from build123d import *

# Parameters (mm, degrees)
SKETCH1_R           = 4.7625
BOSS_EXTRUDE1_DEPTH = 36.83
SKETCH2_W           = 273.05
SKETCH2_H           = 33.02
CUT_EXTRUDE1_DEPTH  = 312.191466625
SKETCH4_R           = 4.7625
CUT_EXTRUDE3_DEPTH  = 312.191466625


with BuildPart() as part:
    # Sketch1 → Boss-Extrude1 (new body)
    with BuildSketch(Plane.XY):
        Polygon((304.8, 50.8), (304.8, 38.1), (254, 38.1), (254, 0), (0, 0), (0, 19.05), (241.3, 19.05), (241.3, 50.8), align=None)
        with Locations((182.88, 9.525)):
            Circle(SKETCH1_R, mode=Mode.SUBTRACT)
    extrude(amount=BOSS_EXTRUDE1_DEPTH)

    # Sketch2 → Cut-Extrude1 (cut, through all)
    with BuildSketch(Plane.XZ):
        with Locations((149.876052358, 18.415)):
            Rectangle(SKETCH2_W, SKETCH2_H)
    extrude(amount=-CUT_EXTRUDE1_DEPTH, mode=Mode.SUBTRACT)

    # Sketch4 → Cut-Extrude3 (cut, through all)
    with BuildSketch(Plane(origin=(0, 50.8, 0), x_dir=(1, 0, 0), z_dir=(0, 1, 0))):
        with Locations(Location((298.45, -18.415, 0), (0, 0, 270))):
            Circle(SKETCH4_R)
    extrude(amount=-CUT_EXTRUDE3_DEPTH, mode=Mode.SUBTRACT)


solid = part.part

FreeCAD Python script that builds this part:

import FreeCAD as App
import Part
import Sketcher
from FreeCAD import Vector
Q = App.Units.Quantity

doc = App.newDocument("Part")
body = doc.addObject("PartDesign::Body", "Body")

sketch1 = body.newObject("Sketcher::SketchObject", "Sketch")
sketch1.AttachmentSupport = (doc.getObject("XY_Plane"), [""])
sketch1.MapMode = "FlatFace"
sketch1.addGeometry(Part.LineSegment(Vector(304.8, 38.1, 0), Vector(304.8, 50.8, 0)), False)
sketch1.addGeometry(Part.LineSegment(Vector(304.8, 50.8, 0), Vector(241.3, 50.8, 0)), False)
sketch1.addGeometry(Part.LineSegment(Vector(241.3, 50.8, 0), Vector(241.3, 19.05, 0)), False)
sketch1.addGeometry(Part.LineSegment(Vector(241.3, 19.05, 0), Vector(0, 19.05, 0)), False)
sketch1.addGeometry(Part.LineSegment(Vector(0, 19.05, 0), Vector(0, 0, 0)), False)
sketch1.addGeometry(Part.LineSegment(Vector(0, 0, 0), Vector(254, 0, 0)), False)
sketch1.addGeometry(Part.LineSegment(Vector(254, 0, 0), Vector(254, 38.1, 0)), False)
sketch1.addGeometry(Part.LineSegment(Vector(254, 38.1, 0), Vector(304.8, 38.1, 0)), False)
sketch1.addGeometry(Part.Circle(Vector(182.88, 9.525, 0), Vector(0, 0, 1), 4.7625), False)
sketch1.addConstraint(Sketcher.Constraint("Coincident", 0, 2, 1, 1))
sketch1.addConstraint(Sketcher.Constraint("Coincident", 1, 2, 2, 1))
sketch1.addConstraint(Sketcher.Constraint("Coincident", 2, 2, 3, 1))
sketch1.addConstraint(Sketcher.Constraint("Coincident", 3, 2, 4, 1))
sketch1.addConstraint(Sketcher.Constraint("Coincident", 4, 2, 5, 1))
sketch1.addConstraint(Sketcher.Constraint("Coincident", 5, 2, 6, 1))
sketch1.addConstraint(Sketcher.Constraint("Coincident", 6, 2, 7, 1))
sketch1.addConstraint(Sketcher.Constraint("Coincident", 7, 2, 0, 1))
sketch1.addConstraint(Sketcher.Constraint("Vertical", 0))
sketch1.addConstraint(Sketcher.Constraint("Horizontal", 1))
sketch1.addConstraint(Sketcher.Constraint("Vertical", 2))
sketch1.addConstraint(Sketcher.Constraint("Horizontal", 3))
sketch1.addConstraint(Sketcher.Constraint("Vertical", 4))
sketch1.addConstraint(Sketcher.Constraint("Horizontal", 5))
sketch1.addConstraint(Sketcher.Constraint("Vertical", 6))
sketch1.addConstraint(Sketcher.Constraint("Horizontal", 7))
sketch1.addConstraint(Sketcher.Constraint("Coincident", 4, 2, -1, 1))
sketch1.addConstraint(Sketcher.Constraint("DistanceX", 5, 1, 5, 2, Q("10 in")))
sketch1.addConstraint(Sketcher.Constraint("DistanceX", 7, 1, 7, 2, Q("2 in")))
sketch1.addConstraint(Sketcher.Constraint("Diameter", 8, Q("0.375 in")))
sketch1.addConstraint(Sketcher.Constraint("DistanceX", 1, 2, 1, 1, Q("2.5 in")))
sketch1.addConstraint(Sketcher.Constraint("DistanceY", 0, 1, 0, 2, Q("0.5 in")))
sketch1.addConstraint(Sketcher.Constraint("DistanceY", 6, 1, 6, 2, Q("1.5 in")))
sketch1.addConstraint(Sketcher.Constraint("DistanceY", 2, 2, 2, 1, Q("1.25 in")))
sketch1.addConstraint(Sketcher.Constraint("DistanceX", -1, 1, 8, 3, Q("7.2 in")))
sketch1.addConstraint(Sketcher.Constraint("DistanceY", -1, 1, 8, 3, Q("0.375 in")))
pad1 = body.newObject("PartDesign::Pad", "Pad")
pad1.Profile = sketch1
pad1.Length = Q("1.45 in")

sketch2 = body.newObject("Sketcher::SketchObject", "Sketch001")
sketch2.AttachmentSupport = (doc.getObject("XZ_Plane"), [""])
sketch2.MapMode = "FlatFace"
sketch2.addGeometry(Part.LineSegment(Vector(13.351052, 34.925, 0), Vector(13.351052, 1.905, 0)), False)
sketch2.addGeometry(Part.LineSegment(Vector(13.351052, 1.905, 0), Vector(286.401052, 1.905, 0)), False)
sketch2.addGeometry(Part.LineSegment(Vector(286.401052, 1.905, 0), Vector(286.401052, 34.925, 0)), False)
sketch2.addGeometry(Part.LineSegment(Vector(286.401052, 34.925, 0), Vector(13.351052, 34.925, 0)), False)
sketch2.addConstraint(Sketcher.Constraint("Coincident", 0, 2, 1, 1))
sketch2.addConstraint(Sketcher.Constraint("Coincident", 1, 2, 2, 1))
sketch2.addConstraint(Sketcher.Constraint("Coincident", 2, 2, 3, 1))
sketch2.addConstraint(Sketcher.Constraint("Coincident", 3, 2, 0, 1))
sketch2.addConstraint(Sketcher.Constraint("Vertical", 0))
sketch2.addConstraint(Sketcher.Constraint("Horizontal", 1))
sketch2.addConstraint(Sketcher.Constraint("Vertical", 2))
sketch2.addConstraint(Sketcher.Constraint("Horizontal", 3))
sketch2.addConstraint(Sketcher.Constraint("DistanceY", 0, 2, 0, 1, Q("1.3 in")))
sketch2.addConstraint(Sketcher.Constraint("DistanceX", 1, 1, 1, 2, Q("10.75 in")))
sketch2.addConstraint(Sketcher.Constraint("DistanceY", -1, 1, 0, 2, Q("0.075 in")))
sketch2.addConstraint(Sketcher.Constraint("DistanceX", -1, 1, 0, 2, Q("13.351052 mm")))
pocket1 = body.newObject("PartDesign::Pocket", "Pocket")
pocket1.Profile = sketch2
pocket1.Type = "ThroughAll"

sketch3 = body.newObject("Sketcher::SketchObject", "Sketch002")
sketch3.AttachmentSupport = (doc.getObject("XZ_Plane"), [""])
sketch3.MapMode = "FlatFace"
sketch3.AttachmentOffset = App.Placement(Vector(0, 0, -2 * 25.4), App.Rotation())
sketch3.addGeometry(Part.Circle(Vector(298.45, 18.415, 0), Vector(0, 0, 1), 4.7625), False)
sketch3.addConstraint(Sketcher.Constraint("Diameter", 0, Q("0.375 in")))
sketch3.addConstraint(Sketcher.Constraint("DistanceX", -1, 1, 0, 3, Q("11.75 in")))
sketch3.addConstraint(Sketcher.Constraint("DistanceY", -1, 1, 0, 3, Q("0.725 in")))
pocket2 = body.newObject("PartDesign::Pocket", "Pocket001")
pocket2.Profile = sketch3
pocket2.Type = "ThroughAll"
pocket2.Reversed = True

doc.recompute()
